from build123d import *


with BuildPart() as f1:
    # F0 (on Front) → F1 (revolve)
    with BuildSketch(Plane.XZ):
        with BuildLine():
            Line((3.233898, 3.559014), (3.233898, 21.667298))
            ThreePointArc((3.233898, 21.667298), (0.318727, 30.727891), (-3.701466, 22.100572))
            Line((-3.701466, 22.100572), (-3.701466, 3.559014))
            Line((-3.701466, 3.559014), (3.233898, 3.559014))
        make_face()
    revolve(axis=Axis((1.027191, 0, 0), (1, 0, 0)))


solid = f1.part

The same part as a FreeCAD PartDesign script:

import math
import FreeCAD as App
import Part
import Sketcher
from FreeCAD import Vector

doc = App.newDocument("Part")
body = doc.addObject("PartDesign::Body", "Body")

sketch1 = body.newObject("Sketcher::SketchObject", "Sketch")
sketch1.AttachmentSupport = (doc.getObject("XZ_Plane"), [""])
sketch1.MapMode = "FlatFace"
sketch1.addGeometry([
    Part.LineSegment(Vector(3.233898, 3.559014, 0), Vector(3.233898, 21.667298, 0)),
    Part.ArcOfCircle(Part.Circle(Vector(0, 25.62608, 0), Vector(0, 0, 1), 5.111757), math.radians(-50.754883), math.radians(223.60528)),
    Part.LineSegment(Vector(-3.701466, 22.100572, 0), Vector(-3.701466, 3.559014, 0)),
    Part.LineSegment(Vector(-3.701466, 3.559014, 0), Vector(3.233898, 3.559014, 0)),
], False)
sketch1.addConstraint([
    Sketcher.Constraint("Coincident", 0, 2, 1, 1),
    Sketcher.Constraint("Coincident", 1, 2, 2, 1),
    Sketcher.Constraint("Coincident", 2, 2, 3, 1),
    Sketcher.Constraint("Coincident", 3, 2, 0, 1),
    Sketcher.Constraint("Vertical", 0),
    Sketcher.Constraint("Vertical", 2),
    Sketcher.Constraint("Horizontal", 3),
    Sketcher.Constraint("PointOnObject", 1, 3, -2),
    Sketcher.Constraint("Radius", 1, 5.111757),
    Sketcher.Constraint("DistanceX", 1, 3, 0, 2, 3.233898),
    Sketcher.Constraint("DistanceX", 3, 1, 3, 2, 6.935364),
    Sketcher.Constraint("DistanceY", 0, 1, 0, 2, 18.108284),
    Sketcher.Constraint("DistanceY", -1, 1, 1, 3, 25.62608),
])
revolution = body.newObject("PartDesign::Revolution", "Revolution")
revolution.Profile = sketch1
revolution.ReferenceAxis = (sketch1, ["H_Axis"])
revolution.Angle = 360

doc.recompute()
